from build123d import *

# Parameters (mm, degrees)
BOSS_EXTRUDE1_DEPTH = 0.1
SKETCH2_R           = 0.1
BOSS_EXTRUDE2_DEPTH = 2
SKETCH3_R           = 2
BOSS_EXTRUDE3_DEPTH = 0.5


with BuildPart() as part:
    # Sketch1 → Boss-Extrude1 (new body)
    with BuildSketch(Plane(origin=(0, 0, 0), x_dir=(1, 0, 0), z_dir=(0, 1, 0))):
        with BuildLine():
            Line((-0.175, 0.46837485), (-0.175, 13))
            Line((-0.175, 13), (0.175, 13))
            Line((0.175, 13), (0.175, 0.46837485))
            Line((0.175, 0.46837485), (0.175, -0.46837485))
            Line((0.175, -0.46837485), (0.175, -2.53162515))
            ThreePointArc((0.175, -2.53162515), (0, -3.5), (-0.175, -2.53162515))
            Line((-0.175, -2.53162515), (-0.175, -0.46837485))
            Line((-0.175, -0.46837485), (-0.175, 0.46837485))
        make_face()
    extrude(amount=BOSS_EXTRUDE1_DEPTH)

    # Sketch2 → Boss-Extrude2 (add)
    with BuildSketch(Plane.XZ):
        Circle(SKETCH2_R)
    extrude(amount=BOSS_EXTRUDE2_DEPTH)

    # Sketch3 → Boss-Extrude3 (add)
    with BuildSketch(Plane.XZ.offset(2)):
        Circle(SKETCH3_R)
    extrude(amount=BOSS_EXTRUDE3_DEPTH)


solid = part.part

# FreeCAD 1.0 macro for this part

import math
import FreeCAD as App
import Part
import Sketcher

V = App.Vector
Q = App.Units.Quantity

doc = App.newDocument("Part")
params = doc.addObject("Spreadsheet::Sheet", "Params")
for row, (alias, value) in enumerate([
    ("sketch1_radius", "0.5 mm"),
    ("sketch1_width", "0.35 mm"),
    ("pad1_length", "0.1 mm"),
    ("sketch2_diameter", "0.2 mm"),
    ("pad2_length", "2 mm"),
    ("sketch3_diameter", "4 mm"),
    ("pad3_length", "0.5 mm"),
], start=1):
    params.set(f"A{row}", alias)
    params.set(f"B{row}", "=" + value)
    params.setAlias(f"B{row}", alias)

body = doc.addObject("PartDesign::Body", "Body")

# Sketch on XZ plane
sketch1 = body.newObject("Sketcher::SketchObject", "Sketch")
sketch1.AttachmentSupport = (doc.getObject("XZ_Plane"), [""])
sketch1.MapMode = "FlatFace"
sketch1.addGeometry([
    Part.LineSegment(V(0.17, -13, 0), V(-0.17, -13, 0)),
    Part.LineSegment(V(-0.17, -13, 0), V(-0.17, 2.53, 0)),
    Part.ArcOfCircle(Part.Circle(V(0, 3, 0), V(0, 0, 1), 0.5), math.radians(-70), math.radians(250)),
    Part.LineSegment(V(0.17, 2.53, 0), V(0.17, -13, 0)),
], False)
sketch1.addConstraint([
    Sketcher.Constraint("Coincident", 0, 2, 1, 1),
    Sketcher.Constraint("Coincident", 1, 2, 2, 2),
    Sketcher.Constraint("Coincident", 2, 1, 3, 1),
    Sketcher.Constraint("Coincident", 3, 2, 0, 1),
    Sketcher.Constraint("Horizontal", 0),
    Sketcher.Constraint("Vertical", 1),
    Sketcher.Constraint("Vertical", 3),
    Sketcher.Constraint("Symmetric", 1, 2, 2, 1, -2),
    Sketcher.Constraint("Radius", 2, Q("0.5 mm")),
    Sketcher.Constraint("DistanceY", -1, 1, 2, 3, Q("3 mm")),
    Sketcher.Constraint("DistanceY", 0, 2, -1, 1, Q("13 mm")),
    Sketcher.Constraint("DistanceX", 0, 2, 0, 1, Q("0.35 mm")),
])
sketch1.setExpression("Constraints[8]", "Params.sketch1_radius")
sketch1.setExpression("Constraints[11]", "Params.sketch1_width")
pad1 = body.newObject("PartDesign::Pad", "Pad")
pad1.Profile = sketch1
pad1.setExpression("Length", "Params.pad1_length")
pad1.Reversed = True

# Sketch on XZ plane
sketch2 = body.newObject("Sketcher::SketchObject", "Sketch001")
sketch2.AttachmentSupport = (doc.getObject("XZ_Plane"), [""])
sketch2.MapMode = "FlatFace"
sketch2.addGeometry(Part.Circle(V(0, 0, 0), V(0, 0, 1), 0.1), False)
sketch2.addConstraint([
    Sketcher.Constraint("Coincident", 0, 3, -1, 1),
    Sketcher.Constraint("Diameter", 0, Q("0.2 mm")),
])
sketch2.setExpression("Constraints[1]", "Params.sketch2_diameter")
pad2 = body.newObject("PartDesign::Pad", "Pad001")
pad2.Profile = sketch2
pad2.setExpression("Length", "Params.pad2_length")

# Sketch on XZ plane
sketch3 = body.newObject("Sketcher::SketchObject", "Sketch002")
sketch3.AttachmentSupport = (doc.getObject("XZ_Plane"), [""])
sketch3.MapMode = "FlatFace"
sketch3.AttachmentOffset = App.Placement(V(0, 0, 2), App.Rotation())
sketch3.addGeometry(Part.Circle(V(0, 0, 0), V(0, 0, 1), 2), False)
sketch3.addConstraint([
    Sketcher.Constraint("Coincident", 0, 3, -1, 1),
    Sketcher.Constraint("Diameter", 0, Q("4 mm")),
])
sketch3.setExpression("Constraints[1]", "Params.sketch3_diameter")
pad3 = body.newObject("PartDesign::Pad", "Pad002")
pad3.Profile = sketch3
pad3.setExpression("Length", "Params.pad3_length")

doc.recompute()
